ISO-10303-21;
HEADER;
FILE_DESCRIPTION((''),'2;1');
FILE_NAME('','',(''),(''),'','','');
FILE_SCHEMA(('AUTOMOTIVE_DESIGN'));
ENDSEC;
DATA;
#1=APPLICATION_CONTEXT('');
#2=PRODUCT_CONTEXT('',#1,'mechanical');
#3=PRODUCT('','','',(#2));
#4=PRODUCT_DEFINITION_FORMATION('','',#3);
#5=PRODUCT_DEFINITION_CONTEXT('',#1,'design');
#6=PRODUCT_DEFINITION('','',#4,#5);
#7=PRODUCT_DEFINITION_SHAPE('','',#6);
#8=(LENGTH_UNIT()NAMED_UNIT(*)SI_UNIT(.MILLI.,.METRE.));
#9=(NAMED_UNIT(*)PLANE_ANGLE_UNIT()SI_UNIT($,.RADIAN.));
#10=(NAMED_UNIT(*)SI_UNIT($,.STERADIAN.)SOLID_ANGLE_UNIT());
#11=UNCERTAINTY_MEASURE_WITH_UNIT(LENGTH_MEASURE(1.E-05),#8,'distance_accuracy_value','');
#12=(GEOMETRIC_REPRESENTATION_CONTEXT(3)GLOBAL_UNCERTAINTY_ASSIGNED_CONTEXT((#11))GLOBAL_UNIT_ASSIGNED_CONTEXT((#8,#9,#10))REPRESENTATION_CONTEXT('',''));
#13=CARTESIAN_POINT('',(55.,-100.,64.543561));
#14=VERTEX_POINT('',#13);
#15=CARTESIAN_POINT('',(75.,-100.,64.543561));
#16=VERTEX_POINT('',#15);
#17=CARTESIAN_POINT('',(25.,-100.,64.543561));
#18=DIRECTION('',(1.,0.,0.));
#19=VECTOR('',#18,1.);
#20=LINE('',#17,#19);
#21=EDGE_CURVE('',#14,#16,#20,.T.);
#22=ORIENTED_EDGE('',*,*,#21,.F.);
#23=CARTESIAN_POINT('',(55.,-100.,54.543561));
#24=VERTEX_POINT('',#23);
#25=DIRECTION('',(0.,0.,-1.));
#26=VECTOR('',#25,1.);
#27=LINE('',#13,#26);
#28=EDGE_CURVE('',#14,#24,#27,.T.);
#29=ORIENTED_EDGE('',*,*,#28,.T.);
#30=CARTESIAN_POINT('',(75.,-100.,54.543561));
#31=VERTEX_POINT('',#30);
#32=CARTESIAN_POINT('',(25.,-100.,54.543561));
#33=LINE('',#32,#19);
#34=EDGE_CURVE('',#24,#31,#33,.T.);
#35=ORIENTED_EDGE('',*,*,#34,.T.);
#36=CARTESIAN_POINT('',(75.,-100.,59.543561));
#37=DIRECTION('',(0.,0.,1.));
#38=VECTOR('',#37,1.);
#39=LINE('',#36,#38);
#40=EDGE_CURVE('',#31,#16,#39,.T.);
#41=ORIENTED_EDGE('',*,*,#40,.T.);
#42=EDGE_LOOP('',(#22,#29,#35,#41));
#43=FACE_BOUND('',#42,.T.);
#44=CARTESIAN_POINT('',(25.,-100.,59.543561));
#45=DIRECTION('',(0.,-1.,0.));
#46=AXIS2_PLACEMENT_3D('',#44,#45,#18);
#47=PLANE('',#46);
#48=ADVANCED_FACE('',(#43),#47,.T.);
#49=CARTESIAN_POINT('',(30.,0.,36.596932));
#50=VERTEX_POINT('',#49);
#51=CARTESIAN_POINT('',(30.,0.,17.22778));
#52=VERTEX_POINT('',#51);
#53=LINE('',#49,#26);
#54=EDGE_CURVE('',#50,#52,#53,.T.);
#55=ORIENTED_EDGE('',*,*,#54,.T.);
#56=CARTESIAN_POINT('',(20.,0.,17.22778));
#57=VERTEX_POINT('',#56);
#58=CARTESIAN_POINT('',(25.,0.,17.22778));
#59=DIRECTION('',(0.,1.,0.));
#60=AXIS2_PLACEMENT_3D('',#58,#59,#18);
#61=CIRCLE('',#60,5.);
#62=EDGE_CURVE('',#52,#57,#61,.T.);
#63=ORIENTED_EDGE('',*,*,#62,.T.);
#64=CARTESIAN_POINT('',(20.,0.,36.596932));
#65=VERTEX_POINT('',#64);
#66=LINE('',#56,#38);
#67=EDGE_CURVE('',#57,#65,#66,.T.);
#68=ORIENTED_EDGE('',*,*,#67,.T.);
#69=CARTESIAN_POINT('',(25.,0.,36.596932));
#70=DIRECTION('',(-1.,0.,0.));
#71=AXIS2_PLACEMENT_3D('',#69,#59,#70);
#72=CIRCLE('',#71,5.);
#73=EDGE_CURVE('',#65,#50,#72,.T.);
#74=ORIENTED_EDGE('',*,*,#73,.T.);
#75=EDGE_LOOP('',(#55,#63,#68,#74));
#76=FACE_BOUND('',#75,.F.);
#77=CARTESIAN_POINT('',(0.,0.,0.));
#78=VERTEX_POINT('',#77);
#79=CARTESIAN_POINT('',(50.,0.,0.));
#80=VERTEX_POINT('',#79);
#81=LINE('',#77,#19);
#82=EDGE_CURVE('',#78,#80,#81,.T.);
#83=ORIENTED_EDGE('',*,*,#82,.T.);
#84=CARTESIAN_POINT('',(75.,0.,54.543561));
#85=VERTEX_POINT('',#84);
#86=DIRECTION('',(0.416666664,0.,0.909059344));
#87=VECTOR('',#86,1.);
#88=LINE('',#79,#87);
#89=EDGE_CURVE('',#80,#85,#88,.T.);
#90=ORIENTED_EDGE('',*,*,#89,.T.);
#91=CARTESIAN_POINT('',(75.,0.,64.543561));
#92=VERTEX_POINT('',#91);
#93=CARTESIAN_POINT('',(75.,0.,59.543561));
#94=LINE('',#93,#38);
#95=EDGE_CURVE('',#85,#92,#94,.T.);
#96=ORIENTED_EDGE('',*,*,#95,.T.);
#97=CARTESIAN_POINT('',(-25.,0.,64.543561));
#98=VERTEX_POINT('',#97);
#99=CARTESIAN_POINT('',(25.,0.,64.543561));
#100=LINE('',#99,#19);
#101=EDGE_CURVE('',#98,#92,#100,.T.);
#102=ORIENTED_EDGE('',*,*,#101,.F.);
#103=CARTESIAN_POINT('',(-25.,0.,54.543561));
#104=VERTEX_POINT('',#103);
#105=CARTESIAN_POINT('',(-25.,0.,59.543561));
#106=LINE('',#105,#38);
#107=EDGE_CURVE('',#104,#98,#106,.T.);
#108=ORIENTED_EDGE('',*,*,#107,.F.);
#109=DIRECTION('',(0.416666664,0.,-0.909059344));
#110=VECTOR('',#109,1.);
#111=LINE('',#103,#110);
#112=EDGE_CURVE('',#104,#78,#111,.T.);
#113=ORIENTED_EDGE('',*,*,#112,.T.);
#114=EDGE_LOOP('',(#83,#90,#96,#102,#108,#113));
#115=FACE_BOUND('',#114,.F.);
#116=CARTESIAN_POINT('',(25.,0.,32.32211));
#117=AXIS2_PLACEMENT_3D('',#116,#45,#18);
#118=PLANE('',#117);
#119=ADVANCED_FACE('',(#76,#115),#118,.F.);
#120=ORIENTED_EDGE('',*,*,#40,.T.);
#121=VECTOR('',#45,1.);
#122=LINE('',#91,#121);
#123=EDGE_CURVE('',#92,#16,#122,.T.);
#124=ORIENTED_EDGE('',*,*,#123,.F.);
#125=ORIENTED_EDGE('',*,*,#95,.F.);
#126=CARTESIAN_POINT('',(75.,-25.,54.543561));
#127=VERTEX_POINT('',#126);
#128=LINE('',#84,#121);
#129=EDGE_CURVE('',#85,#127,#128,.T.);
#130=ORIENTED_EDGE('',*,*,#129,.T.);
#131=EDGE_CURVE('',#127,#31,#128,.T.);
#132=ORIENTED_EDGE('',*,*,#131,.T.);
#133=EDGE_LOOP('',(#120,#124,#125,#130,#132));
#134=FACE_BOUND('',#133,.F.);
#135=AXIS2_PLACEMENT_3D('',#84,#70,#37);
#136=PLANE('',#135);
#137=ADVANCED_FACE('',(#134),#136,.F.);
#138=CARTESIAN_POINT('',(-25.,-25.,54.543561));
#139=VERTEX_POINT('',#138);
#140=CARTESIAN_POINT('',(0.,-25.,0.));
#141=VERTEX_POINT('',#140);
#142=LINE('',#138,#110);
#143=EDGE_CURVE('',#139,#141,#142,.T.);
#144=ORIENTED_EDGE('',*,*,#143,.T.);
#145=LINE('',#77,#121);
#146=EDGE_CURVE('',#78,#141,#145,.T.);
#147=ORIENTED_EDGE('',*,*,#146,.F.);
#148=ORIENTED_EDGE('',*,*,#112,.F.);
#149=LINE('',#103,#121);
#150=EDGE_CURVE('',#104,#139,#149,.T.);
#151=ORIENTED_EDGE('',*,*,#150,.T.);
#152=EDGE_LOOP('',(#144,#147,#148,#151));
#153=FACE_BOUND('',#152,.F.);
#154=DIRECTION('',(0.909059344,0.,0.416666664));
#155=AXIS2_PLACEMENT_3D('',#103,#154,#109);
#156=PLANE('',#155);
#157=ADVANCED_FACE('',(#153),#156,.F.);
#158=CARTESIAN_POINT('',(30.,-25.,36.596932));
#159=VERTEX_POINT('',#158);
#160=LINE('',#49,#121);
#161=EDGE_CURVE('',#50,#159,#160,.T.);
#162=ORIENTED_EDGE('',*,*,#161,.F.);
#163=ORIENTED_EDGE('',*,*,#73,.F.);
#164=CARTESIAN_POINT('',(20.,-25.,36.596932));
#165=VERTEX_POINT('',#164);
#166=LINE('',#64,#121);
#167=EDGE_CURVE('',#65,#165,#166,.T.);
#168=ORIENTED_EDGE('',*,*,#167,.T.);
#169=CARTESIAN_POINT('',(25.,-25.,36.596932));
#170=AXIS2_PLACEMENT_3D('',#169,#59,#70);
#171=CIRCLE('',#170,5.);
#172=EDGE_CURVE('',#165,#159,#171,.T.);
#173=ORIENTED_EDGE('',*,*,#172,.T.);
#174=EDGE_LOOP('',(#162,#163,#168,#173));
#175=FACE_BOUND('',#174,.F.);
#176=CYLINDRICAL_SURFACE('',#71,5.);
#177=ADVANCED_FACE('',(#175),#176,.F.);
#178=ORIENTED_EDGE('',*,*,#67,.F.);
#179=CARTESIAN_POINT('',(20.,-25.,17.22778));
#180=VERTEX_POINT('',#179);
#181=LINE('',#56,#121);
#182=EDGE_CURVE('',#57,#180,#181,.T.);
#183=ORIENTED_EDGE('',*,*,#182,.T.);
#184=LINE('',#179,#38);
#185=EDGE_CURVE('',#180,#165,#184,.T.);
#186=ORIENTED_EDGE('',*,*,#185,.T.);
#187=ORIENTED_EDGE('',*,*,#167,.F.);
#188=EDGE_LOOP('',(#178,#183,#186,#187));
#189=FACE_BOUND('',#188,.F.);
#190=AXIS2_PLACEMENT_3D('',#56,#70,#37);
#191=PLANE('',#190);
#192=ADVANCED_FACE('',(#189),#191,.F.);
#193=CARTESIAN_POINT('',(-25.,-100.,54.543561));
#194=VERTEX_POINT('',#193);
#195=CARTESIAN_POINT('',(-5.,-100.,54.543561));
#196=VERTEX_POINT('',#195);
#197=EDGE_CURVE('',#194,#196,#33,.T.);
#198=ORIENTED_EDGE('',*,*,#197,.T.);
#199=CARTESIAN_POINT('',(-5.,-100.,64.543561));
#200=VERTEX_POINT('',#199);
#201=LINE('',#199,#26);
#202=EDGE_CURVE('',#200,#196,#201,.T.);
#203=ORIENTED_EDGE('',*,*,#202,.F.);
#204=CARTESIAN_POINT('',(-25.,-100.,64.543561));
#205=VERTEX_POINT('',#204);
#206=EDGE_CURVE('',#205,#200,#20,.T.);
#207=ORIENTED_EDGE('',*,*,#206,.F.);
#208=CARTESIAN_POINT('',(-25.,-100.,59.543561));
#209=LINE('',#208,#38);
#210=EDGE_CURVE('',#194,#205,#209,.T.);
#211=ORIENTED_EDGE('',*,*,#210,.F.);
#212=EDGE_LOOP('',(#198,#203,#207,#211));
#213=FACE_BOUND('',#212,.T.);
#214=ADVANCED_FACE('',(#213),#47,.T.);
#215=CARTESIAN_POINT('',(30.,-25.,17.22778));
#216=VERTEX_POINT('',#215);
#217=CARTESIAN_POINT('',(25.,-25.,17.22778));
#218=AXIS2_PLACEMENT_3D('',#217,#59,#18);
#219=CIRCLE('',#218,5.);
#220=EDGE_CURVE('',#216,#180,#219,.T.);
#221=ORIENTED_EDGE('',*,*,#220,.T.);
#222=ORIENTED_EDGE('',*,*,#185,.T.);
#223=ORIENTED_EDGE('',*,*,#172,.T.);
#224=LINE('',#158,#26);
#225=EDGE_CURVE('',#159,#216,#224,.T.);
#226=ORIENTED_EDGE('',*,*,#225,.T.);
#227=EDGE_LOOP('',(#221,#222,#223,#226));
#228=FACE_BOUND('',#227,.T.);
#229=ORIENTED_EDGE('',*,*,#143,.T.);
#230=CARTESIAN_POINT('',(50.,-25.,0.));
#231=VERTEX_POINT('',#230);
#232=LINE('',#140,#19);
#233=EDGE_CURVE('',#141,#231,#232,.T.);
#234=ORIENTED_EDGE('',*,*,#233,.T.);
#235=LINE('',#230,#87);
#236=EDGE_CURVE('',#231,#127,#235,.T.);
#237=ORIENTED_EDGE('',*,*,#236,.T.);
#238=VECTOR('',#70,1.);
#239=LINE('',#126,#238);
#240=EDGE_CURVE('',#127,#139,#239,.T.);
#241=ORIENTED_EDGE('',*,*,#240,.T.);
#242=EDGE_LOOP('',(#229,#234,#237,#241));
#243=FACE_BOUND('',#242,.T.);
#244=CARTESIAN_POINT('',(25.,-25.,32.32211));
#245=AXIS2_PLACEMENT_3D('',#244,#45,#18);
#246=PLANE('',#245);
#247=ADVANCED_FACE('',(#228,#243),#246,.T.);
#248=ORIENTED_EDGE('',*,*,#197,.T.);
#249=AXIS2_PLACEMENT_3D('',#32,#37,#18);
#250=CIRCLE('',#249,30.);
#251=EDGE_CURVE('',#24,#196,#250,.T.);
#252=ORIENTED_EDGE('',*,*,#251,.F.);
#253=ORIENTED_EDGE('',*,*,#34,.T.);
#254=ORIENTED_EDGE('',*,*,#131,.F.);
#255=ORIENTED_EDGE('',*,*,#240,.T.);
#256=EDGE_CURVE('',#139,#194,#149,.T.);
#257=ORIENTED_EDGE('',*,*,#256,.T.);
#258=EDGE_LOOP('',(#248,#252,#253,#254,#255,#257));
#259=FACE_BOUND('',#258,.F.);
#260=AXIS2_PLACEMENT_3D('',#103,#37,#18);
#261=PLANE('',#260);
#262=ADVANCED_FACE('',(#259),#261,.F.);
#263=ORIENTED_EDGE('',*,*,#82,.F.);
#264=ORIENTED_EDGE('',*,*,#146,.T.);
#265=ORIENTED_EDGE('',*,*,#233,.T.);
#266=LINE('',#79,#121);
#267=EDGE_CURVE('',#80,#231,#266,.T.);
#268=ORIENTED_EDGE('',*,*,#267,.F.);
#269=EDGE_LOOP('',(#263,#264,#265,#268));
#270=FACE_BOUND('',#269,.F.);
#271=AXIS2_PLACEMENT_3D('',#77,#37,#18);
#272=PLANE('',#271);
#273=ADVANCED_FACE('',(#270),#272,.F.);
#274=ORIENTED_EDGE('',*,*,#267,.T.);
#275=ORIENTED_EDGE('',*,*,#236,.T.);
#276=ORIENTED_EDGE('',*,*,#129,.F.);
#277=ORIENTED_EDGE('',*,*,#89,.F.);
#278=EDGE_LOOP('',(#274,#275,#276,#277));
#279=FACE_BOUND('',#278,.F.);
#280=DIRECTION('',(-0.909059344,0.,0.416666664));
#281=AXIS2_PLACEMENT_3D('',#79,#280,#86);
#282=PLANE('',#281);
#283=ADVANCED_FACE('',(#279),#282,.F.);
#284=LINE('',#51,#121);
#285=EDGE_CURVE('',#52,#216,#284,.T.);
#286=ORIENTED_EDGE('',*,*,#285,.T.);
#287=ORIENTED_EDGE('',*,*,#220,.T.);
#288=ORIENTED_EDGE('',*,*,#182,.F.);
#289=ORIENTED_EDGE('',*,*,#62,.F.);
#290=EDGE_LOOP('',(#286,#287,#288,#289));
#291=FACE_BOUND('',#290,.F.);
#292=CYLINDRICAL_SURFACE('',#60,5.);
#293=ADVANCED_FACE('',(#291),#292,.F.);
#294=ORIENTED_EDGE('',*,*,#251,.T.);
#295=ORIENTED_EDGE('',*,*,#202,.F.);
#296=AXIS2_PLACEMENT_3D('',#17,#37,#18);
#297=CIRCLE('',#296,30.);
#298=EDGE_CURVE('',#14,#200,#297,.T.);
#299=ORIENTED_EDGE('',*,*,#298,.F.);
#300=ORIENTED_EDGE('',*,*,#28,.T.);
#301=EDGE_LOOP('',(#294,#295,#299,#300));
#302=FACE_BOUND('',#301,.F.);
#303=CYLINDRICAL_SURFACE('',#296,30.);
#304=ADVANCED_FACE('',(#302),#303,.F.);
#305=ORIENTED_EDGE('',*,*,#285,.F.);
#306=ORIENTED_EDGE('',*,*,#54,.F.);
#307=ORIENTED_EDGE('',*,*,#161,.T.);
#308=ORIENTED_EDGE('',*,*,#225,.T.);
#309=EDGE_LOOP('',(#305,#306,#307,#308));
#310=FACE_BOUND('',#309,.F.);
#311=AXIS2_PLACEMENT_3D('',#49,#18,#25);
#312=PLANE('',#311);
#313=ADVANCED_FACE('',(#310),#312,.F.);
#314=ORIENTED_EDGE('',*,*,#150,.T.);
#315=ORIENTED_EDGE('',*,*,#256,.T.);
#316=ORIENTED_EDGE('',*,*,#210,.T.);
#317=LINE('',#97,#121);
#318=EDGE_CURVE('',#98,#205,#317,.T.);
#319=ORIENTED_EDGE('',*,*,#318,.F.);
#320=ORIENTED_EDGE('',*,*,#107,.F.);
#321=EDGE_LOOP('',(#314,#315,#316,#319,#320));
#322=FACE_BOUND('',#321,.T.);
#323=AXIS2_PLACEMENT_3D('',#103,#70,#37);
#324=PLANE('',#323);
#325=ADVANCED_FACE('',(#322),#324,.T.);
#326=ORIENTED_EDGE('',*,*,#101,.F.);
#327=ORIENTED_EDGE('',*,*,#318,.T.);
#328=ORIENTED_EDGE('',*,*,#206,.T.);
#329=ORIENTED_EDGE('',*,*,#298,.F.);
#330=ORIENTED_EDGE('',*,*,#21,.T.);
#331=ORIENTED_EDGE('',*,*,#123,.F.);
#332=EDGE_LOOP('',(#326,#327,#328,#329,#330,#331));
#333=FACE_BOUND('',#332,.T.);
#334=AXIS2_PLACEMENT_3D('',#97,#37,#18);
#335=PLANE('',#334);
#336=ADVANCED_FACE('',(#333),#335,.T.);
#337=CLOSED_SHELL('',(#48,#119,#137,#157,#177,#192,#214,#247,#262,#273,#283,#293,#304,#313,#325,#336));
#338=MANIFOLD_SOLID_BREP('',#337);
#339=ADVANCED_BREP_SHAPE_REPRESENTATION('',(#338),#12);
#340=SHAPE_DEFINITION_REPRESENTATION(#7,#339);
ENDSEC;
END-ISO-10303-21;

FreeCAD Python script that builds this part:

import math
import FreeCAD as App
import Part
import Sketcher
Q = App.Units.Quantity


def add_polygon(sketch, points):
    """Adds a closed chain of lines whose ends are joined by coincident constraints."""
    first, n = sketch.GeometryCount, len(points)
    for a, b in zip(points, points[1:] + points[:1]):
        sketch.addGeometry(Part.LineSegment(App.Vector(*a, 0), App.Vector(*b, 0)), False)
    for i in range(n):
        sketch.addConstraint(Sketcher.Constraint("Coincident", first + i, 2, first + (i + 1) % n, 1))

doc = App.newDocument("Part")
params = doc.addObject("Spreadsheet::Sheet", "Params")
for row, (alias, value) in enumerate([
    ("sketch1_width", "100 mm"),
    ("sketch1_height", "10 mm"),
    ("pad1_length", "100 mm"),
    ("sketch2_width", "50 mm"),
    ("sketch2_width2", "100 mm"),
    ("sketch2_length", "60 mm"),
    ("pad2_length", "25 mm"),
    ("sketch3_radius", "5 mm"),
    ("pocket1_length", "25 mm"),
    ("sketch4_radius", "30 mm"),
    ("pocket2_length", "25 mm"),
], start=1):
    params.set(f"A{row}", alias)
    params.set(f"B{row}", "=" + value)
    params.setAlias(f"B{row}", alias)

body = doc.addObject("PartDesign::Body", "Body")

sketch1 = doc.addObject("Sketcher::SketchObject", "Sketch")
body.addObject(sketch1)
sketch1.AttachmentSupport = (doc.XZ_Plane, [""])
sketch1.MapMode = "FlatFace"
add_polygon(sketch1, [(-25, 65), (-25, 55), (75, 55), (75, 65)])
sketch1.addConstraint([
    Sketcher.Constraint("Vertical", 0),
    Sketcher.Constraint("Horizontal", 1),
    Sketcher.Constraint("Vertical", 2),
    Sketcher.Constraint("Horizontal", 3),
    Sketcher.Constraint("DistanceX", 1, 1, 1, 2, Q("100 mm")),
    Sketcher.Constraint("DistanceY", 0, 2, 0, 1, Q("10 mm")),
    Sketcher.Constraint("DistanceX", 0, 2, -1, 1, Q("25 mm")),
    Sketcher.Constraint("DistanceY", -1, 1, 0, 2, Q("54.543561 mm")),
])
sketch1.setExpression("Constraints[8]", "Params.sketch1_width")
sketch1.setExpression("Constraints[9]", "Params.sketch1_height")
pad1 = doc.addObject("PartDesign::Pad", "Pad")
body.addObject(pad1)
pad1.Profile = sketch1
pad1.setExpression("Length", "Params.pad1_length")

sketch2 = doc.addObject("Sketcher::SketchObject", "Sketch001")
body.addObject(sketch2)
sketch2.AttachmentSupport = (doc.XZ_Plane, [""])
sketch2.MapMode = "FlatFace"
add_polygon(sketch2, [(-25, 55), (0, 0), (50, 0), (75, 55)])
sketch2.addConstraint([
    Sketcher.Constraint("Horizontal", 1),
    Sketcher.Constraint("Horizontal", 3),
    Sketcher.Constraint("Coincident", 0, 2, -1, 1),
    Sketcher.Constraint("Equal", 0, 2),
    Sketcher.Constraint("DistanceX", 1, 1, 1, 2, Q("50 mm")),
    Sketcher.Constraint("DistanceX", 3, 2, 3, 1, Q("100 mm")),
    Sketcher.Constraint("Distance", 0, Q("60 mm")),
])
sketch2.setExpression("Constraints[8]", "Params.sketch2_width")
sketch2.setExpression("Constraints[9]", "Params.sketch2_width2")
sketch2.setExpression("Constraints[10]", "Params.sketch2_length")
pad2 = doc.addObject("PartDesign::Pad", "Pad001")
body.addObject(pad2)
pad2.Profile = sketch2
pad2.setExpression("Length", "Params.pad2_length")

sketch3 = doc.addObject("Sketcher::SketchObject", "Sketch002")
body.addObject(sketch3)
sketch3.AttachmentSupport = (doc.XZ_Plane, [""])
sketch3.MapMode = "FlatFace"
sketch3.addGeometry([
    Part.LineSegment(App.Vector(20, 17, 0), App.Vector(20, 37, 0)),
    Part.ArcOfCircle(Part.Circle(App.Vector(25, 37, 0), App.Vector(0, 0, 1), 5), math.radians(0), math.radians(180)),
    Part.LineSegment(App.Vector(30, 37, 0), App.Vector(30, 17, 0)),
    Part.ArcOfCircle(Part.Circle(App.Vector(25, 17, 0), App.Vector(0, 0, 1), 5), math.radians(180), math.radians(360)),
], False)
sketch3.addConstraint([
    Sketcher.Constraint("Tangent", 0, 2, 1, 2),
    Sketcher.Constraint("Tangent", 1, 1, 2, 1),
    Sketcher.Constraint("Tangent", 2, 2, 3, 2),
    Sketcher.Constraint("Tangent", 3, 1, 0, 1),
    Sketcher.Constraint("Vertical", 0),
    Sketcher.Constraint("Vertical", 2),
    Sketcher.Constraint("Radius", 1, Q("5 mm")),
    Sketcher.Constraint("DistanceX", -1, 1, 1, 3, Q("25 mm")),
    Sketcher.Constraint("DistanceY", 0, 1, 0, 2, Q("19.369152 mm")),
    Sketcher.Constraint("DistanceY", -1, 1, 3, 3, Q("17.22778 mm")),
])
sketch3.setExpression("Constraints[6]", "Params.sketch3_radius")
pocket1 = doc.addObject("PartDesign::Pocket", "Pocket")
body.addObject(pocket1)
pocket1.Profile = sketch3
pocket1.setExpression("Length", "Params.pocket1_length")
pocket1.Reversed = True

sketch4 = doc.addObject("Sketcher::SketchObject", "Sketch003")
body.addObject(sketch4)
sketch4.AttachmentSupport = (doc.XY_Plane, [""])
sketch4.MapMode = "FlatFace"
sketch4.AttachmentOffset = App.Placement(App.Vector(0, 0, 64.543561), App.Rotation())
sketch4.addGeometry([
    Part.LineSegment(App.Vector(-5, -100, 0), App.Vector(55, -100, 0)),
    Part.ArcOfCircle(Part.Circle(App.Vector(25, -100, 0), App.Vector(0, 0, 1), 30), math.radians(0), math.radians(180)),
], False)
sketch4.addConstraint([
    Sketcher.Constraint("Coincident", 0, 1, 1, 2),
    Sketcher.Constraint("Coincident", 1, 1, 0, 2),
    Sketcher.Constraint("Horizontal", 0),
    Sketcher.Constraint("Horizontal", 1, 3, 0, 1),
    Sketcher.Constraint("Radius", 1, Q("30 mm")),
    Sketcher.Constraint("DistanceX", -1, 1, 1, 3, Q("25 mm")),
    Sketcher.Constraint("DistanceY", 1, 3, -1, 1, Q("100 mm")),
])
sketch4.setExpression("Constraints[4]", "Params.sketch4_radius")
pocket2 = doc.addObject("PartDesign::Pocket", "Pocket001")
body.addObject(pocket2)
pocket2.Profile = sketch4
pocket2.setExpression("Length", "Params.pocket2_length")

doc.recompute()
